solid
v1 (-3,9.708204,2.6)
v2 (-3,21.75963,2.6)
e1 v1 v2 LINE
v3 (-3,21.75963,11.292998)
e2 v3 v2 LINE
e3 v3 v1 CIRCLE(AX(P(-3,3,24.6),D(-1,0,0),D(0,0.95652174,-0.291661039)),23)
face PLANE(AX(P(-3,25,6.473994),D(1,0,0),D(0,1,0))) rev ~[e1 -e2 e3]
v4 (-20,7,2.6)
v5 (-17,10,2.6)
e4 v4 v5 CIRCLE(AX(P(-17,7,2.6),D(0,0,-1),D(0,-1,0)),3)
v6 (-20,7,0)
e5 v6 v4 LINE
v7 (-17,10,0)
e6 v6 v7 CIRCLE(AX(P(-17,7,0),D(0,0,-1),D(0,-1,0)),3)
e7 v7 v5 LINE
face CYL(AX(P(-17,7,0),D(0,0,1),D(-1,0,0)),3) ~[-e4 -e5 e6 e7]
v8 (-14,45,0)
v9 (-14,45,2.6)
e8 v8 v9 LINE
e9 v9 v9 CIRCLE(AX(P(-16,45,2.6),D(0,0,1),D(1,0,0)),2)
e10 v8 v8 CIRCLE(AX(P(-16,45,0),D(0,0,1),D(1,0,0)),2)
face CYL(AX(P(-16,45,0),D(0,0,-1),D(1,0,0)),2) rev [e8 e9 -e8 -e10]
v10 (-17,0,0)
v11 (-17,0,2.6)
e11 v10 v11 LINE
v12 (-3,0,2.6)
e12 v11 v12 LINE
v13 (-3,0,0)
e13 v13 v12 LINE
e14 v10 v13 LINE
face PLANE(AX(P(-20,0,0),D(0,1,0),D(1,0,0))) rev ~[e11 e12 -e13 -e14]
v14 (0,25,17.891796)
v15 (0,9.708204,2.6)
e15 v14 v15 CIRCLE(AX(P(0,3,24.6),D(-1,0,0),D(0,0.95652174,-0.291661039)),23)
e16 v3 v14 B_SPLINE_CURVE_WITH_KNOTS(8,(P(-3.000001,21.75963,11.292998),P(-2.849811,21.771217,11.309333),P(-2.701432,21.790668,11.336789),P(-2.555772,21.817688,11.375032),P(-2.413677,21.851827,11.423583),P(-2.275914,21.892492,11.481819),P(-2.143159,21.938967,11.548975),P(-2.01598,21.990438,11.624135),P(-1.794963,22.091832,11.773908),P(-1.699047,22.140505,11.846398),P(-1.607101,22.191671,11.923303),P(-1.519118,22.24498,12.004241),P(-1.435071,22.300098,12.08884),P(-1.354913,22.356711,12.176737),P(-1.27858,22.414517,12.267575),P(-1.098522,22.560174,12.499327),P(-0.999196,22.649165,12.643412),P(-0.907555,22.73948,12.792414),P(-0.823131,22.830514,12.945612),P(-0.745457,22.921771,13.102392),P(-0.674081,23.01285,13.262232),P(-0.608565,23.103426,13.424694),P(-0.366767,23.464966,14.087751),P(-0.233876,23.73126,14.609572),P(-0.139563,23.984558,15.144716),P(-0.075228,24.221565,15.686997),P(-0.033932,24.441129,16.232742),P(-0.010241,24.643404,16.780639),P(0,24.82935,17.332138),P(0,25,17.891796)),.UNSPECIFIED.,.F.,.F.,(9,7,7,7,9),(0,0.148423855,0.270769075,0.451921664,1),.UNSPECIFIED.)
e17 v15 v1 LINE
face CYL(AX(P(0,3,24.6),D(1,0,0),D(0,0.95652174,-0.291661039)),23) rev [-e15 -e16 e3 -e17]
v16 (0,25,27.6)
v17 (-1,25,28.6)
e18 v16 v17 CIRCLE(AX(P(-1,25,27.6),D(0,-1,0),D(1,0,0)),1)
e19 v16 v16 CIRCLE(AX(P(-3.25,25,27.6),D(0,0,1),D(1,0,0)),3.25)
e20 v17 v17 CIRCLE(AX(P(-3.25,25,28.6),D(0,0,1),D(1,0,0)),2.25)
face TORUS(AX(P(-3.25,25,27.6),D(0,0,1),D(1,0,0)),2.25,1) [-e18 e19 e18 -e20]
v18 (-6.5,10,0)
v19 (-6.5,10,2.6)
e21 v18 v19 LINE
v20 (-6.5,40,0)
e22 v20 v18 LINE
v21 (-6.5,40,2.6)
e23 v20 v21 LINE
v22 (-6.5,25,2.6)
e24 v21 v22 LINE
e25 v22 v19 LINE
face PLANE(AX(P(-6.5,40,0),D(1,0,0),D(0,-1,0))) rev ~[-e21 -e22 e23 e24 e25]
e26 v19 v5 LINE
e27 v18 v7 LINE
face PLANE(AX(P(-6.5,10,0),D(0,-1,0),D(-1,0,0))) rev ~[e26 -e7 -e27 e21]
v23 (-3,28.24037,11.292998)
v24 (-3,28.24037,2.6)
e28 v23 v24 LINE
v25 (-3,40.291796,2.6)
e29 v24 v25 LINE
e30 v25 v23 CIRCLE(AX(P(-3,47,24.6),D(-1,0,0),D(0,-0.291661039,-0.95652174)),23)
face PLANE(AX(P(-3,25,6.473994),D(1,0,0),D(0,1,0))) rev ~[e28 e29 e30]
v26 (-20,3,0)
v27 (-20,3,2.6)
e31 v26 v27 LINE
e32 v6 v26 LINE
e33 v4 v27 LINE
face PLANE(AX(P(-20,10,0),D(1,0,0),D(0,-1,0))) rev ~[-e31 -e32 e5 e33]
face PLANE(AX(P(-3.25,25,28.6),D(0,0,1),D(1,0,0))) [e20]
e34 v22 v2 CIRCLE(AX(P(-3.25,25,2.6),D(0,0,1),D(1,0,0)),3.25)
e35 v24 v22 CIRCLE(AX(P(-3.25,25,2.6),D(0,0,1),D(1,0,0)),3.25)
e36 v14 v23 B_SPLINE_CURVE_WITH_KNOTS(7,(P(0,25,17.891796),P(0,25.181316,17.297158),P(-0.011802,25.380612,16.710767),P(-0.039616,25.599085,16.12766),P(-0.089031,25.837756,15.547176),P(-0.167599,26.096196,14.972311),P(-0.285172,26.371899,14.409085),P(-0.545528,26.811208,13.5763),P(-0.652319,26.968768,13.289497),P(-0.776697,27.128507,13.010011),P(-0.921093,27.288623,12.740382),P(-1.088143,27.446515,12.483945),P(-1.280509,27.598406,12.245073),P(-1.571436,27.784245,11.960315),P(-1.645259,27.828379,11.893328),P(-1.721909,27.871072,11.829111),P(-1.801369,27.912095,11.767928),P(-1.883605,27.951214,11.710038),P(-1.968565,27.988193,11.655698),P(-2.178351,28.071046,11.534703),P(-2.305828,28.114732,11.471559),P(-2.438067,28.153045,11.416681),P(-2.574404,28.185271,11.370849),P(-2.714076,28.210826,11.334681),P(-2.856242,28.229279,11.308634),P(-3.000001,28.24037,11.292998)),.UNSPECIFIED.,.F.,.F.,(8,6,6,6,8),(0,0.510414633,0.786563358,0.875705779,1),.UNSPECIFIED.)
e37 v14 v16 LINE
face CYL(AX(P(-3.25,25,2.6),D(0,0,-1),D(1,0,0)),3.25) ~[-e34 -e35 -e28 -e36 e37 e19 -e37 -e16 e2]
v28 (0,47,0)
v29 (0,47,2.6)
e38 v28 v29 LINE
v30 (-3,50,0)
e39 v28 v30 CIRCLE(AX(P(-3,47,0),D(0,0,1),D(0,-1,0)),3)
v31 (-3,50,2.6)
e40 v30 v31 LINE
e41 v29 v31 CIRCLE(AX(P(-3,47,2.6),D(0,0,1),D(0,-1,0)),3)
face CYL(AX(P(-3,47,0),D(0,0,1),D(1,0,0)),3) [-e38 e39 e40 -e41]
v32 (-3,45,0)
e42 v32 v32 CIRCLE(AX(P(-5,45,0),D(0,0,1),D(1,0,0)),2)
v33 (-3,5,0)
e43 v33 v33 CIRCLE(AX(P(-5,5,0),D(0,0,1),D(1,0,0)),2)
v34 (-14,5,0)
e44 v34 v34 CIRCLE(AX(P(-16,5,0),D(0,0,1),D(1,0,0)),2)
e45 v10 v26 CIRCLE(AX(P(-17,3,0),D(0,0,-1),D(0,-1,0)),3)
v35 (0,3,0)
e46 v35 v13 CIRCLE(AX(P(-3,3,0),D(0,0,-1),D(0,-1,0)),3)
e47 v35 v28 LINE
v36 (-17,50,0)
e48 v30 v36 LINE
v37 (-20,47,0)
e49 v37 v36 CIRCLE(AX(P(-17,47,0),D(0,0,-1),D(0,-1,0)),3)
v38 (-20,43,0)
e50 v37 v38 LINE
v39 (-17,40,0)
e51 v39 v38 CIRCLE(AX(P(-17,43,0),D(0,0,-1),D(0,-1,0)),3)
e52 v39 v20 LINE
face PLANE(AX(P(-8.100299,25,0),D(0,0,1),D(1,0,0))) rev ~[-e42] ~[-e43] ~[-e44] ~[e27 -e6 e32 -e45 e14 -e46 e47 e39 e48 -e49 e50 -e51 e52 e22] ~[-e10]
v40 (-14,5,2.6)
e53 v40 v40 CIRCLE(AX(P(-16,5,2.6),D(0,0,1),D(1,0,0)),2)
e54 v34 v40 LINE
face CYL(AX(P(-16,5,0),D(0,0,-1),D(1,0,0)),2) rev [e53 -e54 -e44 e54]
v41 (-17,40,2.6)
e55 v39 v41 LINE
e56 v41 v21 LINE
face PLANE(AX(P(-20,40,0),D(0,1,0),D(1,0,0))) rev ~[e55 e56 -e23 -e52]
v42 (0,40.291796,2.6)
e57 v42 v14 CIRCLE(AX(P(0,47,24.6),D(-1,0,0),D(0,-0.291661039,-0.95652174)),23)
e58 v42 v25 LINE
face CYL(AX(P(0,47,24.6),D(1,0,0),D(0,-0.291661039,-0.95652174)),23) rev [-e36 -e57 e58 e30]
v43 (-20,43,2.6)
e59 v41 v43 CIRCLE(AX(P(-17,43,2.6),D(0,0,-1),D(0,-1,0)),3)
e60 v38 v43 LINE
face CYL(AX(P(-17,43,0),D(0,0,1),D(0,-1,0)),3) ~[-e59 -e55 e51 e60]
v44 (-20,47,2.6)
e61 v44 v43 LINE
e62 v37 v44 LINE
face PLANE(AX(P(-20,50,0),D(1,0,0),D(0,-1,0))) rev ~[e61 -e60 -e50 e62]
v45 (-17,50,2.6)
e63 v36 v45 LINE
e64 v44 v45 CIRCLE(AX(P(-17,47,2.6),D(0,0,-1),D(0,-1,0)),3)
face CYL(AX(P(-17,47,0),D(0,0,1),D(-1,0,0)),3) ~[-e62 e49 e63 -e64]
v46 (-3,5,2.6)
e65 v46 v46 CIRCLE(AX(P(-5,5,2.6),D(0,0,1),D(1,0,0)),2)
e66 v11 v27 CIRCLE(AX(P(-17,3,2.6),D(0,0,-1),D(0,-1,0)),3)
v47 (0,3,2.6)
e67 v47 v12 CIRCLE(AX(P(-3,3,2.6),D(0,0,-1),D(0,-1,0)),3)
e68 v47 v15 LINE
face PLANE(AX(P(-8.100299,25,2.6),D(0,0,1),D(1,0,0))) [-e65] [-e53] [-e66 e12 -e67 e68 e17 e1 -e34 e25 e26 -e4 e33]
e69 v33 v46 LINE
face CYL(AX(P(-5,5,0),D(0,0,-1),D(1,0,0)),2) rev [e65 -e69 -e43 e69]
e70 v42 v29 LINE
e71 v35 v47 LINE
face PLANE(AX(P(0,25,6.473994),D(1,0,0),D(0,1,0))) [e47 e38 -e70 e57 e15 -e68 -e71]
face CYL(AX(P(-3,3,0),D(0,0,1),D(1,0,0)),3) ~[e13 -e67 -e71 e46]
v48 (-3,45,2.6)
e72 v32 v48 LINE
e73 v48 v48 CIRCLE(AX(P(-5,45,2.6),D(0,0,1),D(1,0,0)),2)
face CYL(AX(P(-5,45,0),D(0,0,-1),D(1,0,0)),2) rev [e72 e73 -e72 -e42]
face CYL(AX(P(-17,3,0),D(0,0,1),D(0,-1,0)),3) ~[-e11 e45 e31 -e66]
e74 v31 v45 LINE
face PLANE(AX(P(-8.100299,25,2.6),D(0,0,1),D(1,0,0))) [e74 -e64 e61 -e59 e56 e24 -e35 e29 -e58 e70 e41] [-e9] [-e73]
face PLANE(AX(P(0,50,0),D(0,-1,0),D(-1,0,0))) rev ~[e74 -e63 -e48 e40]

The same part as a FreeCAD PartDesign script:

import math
import FreeCAD as App
import Part
import Sketcher

V = App.Vector


def edges_at(feature, points):
    """Names of the edges that pass closest to the given points."""
    edges = feature.Shape.Edges
    near = lambda p: min(range(len(edges)), key=lambda i: edges[i].distToShape(Part.Vertex(*p))[0])
    return sorted({f"Edge{near(p) + 1}" for p in points})


def add_polygon(sketch, points):
    """Adds a closed chain of lines whose ends are joined by coincident constraints."""
    first, n = sketch.GeometryCount, len(points)
    for a, b in zip(points, points[1:] + points[:1]):
        sketch.addGeometry(Part.LineSegment(App.Vector(*a, 0), App.Vector(*b, 0)), False)
    for i in range(n):
        sketch.addConstraint(Sketcher.Constraint("Coincident", first + i, 2, first + (i + 1) % n, 1))

doc = App.newDocument("Part")
body = doc.addObject("PartDesign::Body", "Body")

# Sketch on XY plane
sketch1 = doc.addObject("Sketcher::SketchObject", "Sketch")
body.addObject(sketch1)
sketch1.AttachmentSupport = (doc.XY_Plane, [""])
sketch1.MapMode = "FlatFace"
add_polygon(sketch1, [(0, 50), (-20, 50), (-20, 40), (-6.5, 40), (-6.5, 10), (-20, 10), (-20, 0), (0, 0)])  # lines 0-7
sketch1.addGeometry(Part.Circle(V(-16, 5, 0), V(0, 0, 1), 2), False)  # 8
sketch1.addGeometry(Part.Circle(V(-5, 5, 0), V(0, 0, 1), 2), False)  # 9
sketch1.addGeometry(Part.Circle(V(-16, 45, 0), V(0, 0, 1), 2), False)  # 10
sketch1.addGeometry(Part.Circle(V(-5, 45, 0), V(0, 0, 1), 2), False)  # 11
sketch1.addConstraint([
    Sketcher.Constraint("Horizontal", 0),
    Sketcher.Constraint("Vertical", 1),
    Sketcher.Constraint("Horizontal", 2),
    Sketcher.Constraint("Vertical", 3),
    Sketcher.Constraint("Horizontal", 4),
    Sketcher.Constraint("Vertical", 5),
    Sketcher.Constraint("Horizontal", 6),
    Sketcher.Constraint("Vertical", 7),
    Sketcher.Constraint("Coincident", 6, 2, -1, 1),
    Sketcher.Constraint("Equal", 8, 9),
    Sketcher.Constraint("Equal", 9, 10),
    Sketcher.Constraint("Equal", 10, 11),
    Sketcher.Constraint("Horizontal", 8, 3, 9, 3),
    Sketcher.Constraint("Horizontal", 10, 3, 11, 3),
    Sketcher.Constraint("Vertical", 8, 3, 10, 3),
    Sketcher.Constraint("Vertical", 9, 3, 11, 3),
    Sketcher.Constraint("Vertical", 1, 2, 4, 2),
    Sketcher.Constraint("Equal", 1, 5),
    Sketcher.Constraint("Diameter", 8, 4.0),
    Sketcher.Constraint("DistanceX", 0, 2, 0, 1, 20.0),
    Sketcher.Constraint("DistanceY", 1, 2, 1, 1, 10.0),
    Sketcher.Constraint("DistanceY", 3, 2, 3, 1, 30.0),
    Sketcher.Constraint("DistanceX", 2, 1, 2, 2, 13.5),
    Sketcher.Constraint("DistanceX", 8, 3, -1, 1, 16.0),
    Sketcher.Constraint("DistanceY", -1, 1, 8, 3, 5.0),
    Sketcher.Constraint("DistanceX", 9, 3, -1, 1, 5.0),
    Sketcher.Constraint("DistanceY", -1, 1, 10, 3, 45.0),
])
pad1 = doc.addObject("PartDesign::Pad", "Pad")
body.addObject(pad1)
pad1.Profile = sketch1
pad1.Length = 2.6

# Sketch on XY plane
sketch2 = doc.addObject("Sketcher::SketchObject", "Sketch001")
body.addObject(sketch2)
sketch2.AttachmentSupport = (doc.XY_Plane, [""])
sketch2.MapMode = "FlatFace"
sketch2.AttachmentOffset = App.Placement(V(0, 0, 2.6), App.Rotation())
sketch2.addGeometry(Part.Circle(V(-3.2, 25, 0), V(0, 0, 1), 3.2), False)
sketch2.addConstraint([
    Sketcher.Constraint("Diameter", 0, 6.5),
    Sketcher.Constraint("DistanceY", -1, 1, 0, 3, 25.0),
    Sketcher.Constraint("DistanceX", 0, 3, -1, 1, 3.25),
])
pad2 = doc.addObject("PartDesign::Pad", "Pad001")
body.addObject(pad2)
pad2.Profile = sketch2
pad2.Length = 26
doc.recompute()

fillet = doc.addObject("PartDesign::Fillet", "Fillet")
body.addObject(fillet)
fillet.Base = (pad2, edges_at(pad2, [
    (-20, 50, 1.3),
    (-20, 40, 1.3),
    (-20, 10, 1.3),
    (-20, 0, 1.3),
    (0, 50, 1.3),
    (0, 0, 1.3),
]))
fillet.Radius = 3

# Sketch on YZ plane
sketch3 = doc.addObject("Sketcher::SketchObject", "Sketch002")
body.addObject(sketch3)
sketch3.AttachmentSupport = (doc.YZ_Plane, [""])
sketch3.MapMode = "FlatFace"
sketch3.addGeometry([
    Part.ArcOfCircle(Part.Circle(V(3, 25, 0), V(0, 0, 1), 23), math.radians(-73), math.radians(-17)),
    Part.LineSegment(V(10, 3, 0), V(40, 3, 0)),
    Part.ArcOfCircle(Part.Circle(V(47, 25, 0), V(0, 0, 1), 23), math.radians(-163), math.radians(-107)),
], False)
sketch3.addConstraint([
    Sketcher.Constraint("Coincident", 0, 1, 1, 1),
    Sketcher.Constraint("Coincident", 1, 2, 2, 2),
    Sketcher.Constraint("Coincident", 2, 1, 0, 2),
    Sketcher.Constraint("Horizontal", 1),
    Sketcher.Constraint("Equal", 0, 2),
    Sketcher.Constraint("Horizontal", 0, 3, 2, 3),
    Sketcher.Constraint("Radius", 0, 23.0),
    Sketcher.Constraint("DistanceX", -1, 1, 0, 3, 3.0),
    Sketcher.Constraint("DistanceX", -1, 1, 2, 3, 47.0),
    Sketcher.Constraint("DistanceY", 0, 1, 0, 3, 22.0),
    Sketcher.Constraint("DistanceY", -1, 1, 0, 3, 24.6),
])
pad3 = doc.addObject("PartDesign::Pad", "Pad002")
body.addObject(pad3)
pad3.Profile = sketch3
pad3.Length = 3
pad3.Reversed = True
doc.recompute()

fillet2 = doc.addObject("PartDesign::Fillet", "Fillet001")
body.addObject(fillet2)
fillet2.Base = (pad3, edges_at(pad3, [(-6.5, 25, 28.6)]))
fillet2.Radius = 1

doc.recompute()
